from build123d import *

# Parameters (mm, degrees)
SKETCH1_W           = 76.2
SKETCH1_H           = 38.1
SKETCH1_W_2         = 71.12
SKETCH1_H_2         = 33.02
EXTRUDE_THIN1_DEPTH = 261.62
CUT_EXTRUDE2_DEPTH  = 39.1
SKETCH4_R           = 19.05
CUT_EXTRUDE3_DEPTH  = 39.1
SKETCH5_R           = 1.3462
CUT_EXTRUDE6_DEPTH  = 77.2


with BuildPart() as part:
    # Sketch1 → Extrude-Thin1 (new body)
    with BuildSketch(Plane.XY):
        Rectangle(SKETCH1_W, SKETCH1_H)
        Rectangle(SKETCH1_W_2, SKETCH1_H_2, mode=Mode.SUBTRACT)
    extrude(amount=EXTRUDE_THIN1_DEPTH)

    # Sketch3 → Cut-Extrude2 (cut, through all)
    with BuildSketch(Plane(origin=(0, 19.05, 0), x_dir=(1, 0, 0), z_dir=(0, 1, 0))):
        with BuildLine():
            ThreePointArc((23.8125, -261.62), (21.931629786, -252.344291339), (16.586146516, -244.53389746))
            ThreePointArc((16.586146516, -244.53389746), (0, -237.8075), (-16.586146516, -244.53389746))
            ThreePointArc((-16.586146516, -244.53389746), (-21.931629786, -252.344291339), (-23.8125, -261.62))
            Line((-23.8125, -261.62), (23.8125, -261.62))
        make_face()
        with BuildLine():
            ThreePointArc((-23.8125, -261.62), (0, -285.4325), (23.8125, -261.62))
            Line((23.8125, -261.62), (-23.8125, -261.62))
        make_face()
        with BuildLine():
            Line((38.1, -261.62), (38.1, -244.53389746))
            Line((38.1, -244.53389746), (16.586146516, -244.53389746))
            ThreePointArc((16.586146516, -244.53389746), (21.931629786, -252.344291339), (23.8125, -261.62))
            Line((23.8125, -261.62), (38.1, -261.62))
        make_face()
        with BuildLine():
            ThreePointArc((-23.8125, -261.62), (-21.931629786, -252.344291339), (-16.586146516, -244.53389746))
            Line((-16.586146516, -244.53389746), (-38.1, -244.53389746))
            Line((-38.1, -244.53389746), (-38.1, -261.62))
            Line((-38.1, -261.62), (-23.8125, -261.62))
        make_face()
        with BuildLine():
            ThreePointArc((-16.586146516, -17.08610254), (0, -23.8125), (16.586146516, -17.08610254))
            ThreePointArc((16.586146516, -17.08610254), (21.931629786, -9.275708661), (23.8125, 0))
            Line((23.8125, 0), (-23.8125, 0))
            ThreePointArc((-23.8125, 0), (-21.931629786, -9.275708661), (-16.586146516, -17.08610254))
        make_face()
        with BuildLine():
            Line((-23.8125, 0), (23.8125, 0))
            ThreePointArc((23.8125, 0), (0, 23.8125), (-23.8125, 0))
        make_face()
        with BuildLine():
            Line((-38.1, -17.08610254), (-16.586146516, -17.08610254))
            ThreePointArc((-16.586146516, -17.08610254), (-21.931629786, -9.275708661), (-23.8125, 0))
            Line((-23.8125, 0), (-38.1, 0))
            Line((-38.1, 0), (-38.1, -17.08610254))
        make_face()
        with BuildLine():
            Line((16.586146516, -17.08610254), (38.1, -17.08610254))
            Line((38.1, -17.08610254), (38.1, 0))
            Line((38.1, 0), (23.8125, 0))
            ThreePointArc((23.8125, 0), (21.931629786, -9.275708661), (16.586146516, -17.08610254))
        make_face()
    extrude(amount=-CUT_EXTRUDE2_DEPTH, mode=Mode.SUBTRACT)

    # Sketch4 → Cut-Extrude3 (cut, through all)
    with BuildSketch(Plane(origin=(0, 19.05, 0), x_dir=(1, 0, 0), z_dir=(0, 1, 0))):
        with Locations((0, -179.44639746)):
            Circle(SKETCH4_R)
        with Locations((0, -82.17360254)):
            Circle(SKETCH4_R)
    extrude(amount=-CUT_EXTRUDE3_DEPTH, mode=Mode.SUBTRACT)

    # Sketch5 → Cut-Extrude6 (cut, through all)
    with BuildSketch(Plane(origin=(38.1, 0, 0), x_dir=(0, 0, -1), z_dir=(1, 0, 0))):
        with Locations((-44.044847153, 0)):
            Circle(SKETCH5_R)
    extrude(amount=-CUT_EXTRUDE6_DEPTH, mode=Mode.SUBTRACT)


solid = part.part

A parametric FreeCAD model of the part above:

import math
import FreeCAD as App
import Part
import Sketcher
from FreeCAD import Vector
Q = App.Units.Quantity


def add_polygon(sketch, points):
    """Adds a closed chain of lines whose ends are joined by coincident constraints."""
    first, n = sketch.GeometryCount, len(points)
    for a, b in zip(points, points[1:] + points[:1]):
        sketch.addGeometry(Part.LineSegment(App.Vector(*a, 0), App.Vector(*b, 0)), False)
    for i in range(n):
        sketch.addConstraint(Sketcher.Constraint("Coincident", first + i, 2, first + (i + 1) % n, 1))

doc = App.newDocument("Part")
params = doc.addObject("Spreadsheet::Sheet", "Params")
for row, (alias, value) in enumerate([
    ("sketch1_width", "3 in"),
    ("sketch1_width2", "2.8 in"),
    ("sketch1_height", "1.5 in"),
    ("sketch1_height2", "1.3 in"),
    ("pad1_length", "10.3 in"),
    ("sketch2_radius", "0.9375 in"),
    ("sketch3_diameter", "1.5 in"),
    ("sketch4_diameter", "0.106 in"),
], start=1):
    params.set(f"A{row}", alias)
    params.set(f"B{row}", "=" + value)
    params.setAlias(f"B{row}", alias)

body = doc.addObject("PartDesign::Body", "Body")

sketch1 = body.newObject("Sketcher::SketchObject", "Sketch")
sketch1.AttachmentSupport = (doc.getObject("XY_Plane"), [""])
sketch1.MapMode = "FlatFace"
add_polygon(sketch1, [(-38, 19), (-38, -19), (38, -19), (38, 19)])
add_polygon(sketch1, [(36, -17), (-36, -17), (-36, 17), (36, 17)])
sketch1.addConstraint(Sketcher.Constraint("Vertical", 0))
sketch1.addConstraint(Sketcher.Constraint("Horizontal", 1))
sketch1.addConstraint(Sketcher.Constraint("Vertical", 2))
sketch1.addConstraint(Sketcher.Constraint("Horizontal", 3))
sketch1.addConstraint(Sketcher.Constraint("Horizontal", 4))
sketch1.addConstraint(Sketcher.Constraint("Vertical", 5))
sketch1.addConstraint(Sketcher.Constraint("Horizontal", 6))
sketch1.addConstraint(Sketcher.Constraint("Vertical", 7))
sketch1.addConstraint(Sketcher.Constraint("Symmetric", 0, 2, 2, 2, -1, 1))
sketch1.addConstraint(Sketcher.Constraint("Symmetric", 4, 2, 6, 2, -1, 1))
sketch1.addConstraint(Sketcher.Constraint("DistanceX", 1, 1, 1, 2, Q("3 in")))
sketch1.addConstraint(Sketcher.Constraint("DistanceX", 4, 2, 4, 1, Q("2.8 in")))
sketch1.addConstraint(Sketcher.Constraint("DistanceY", 0, 2, 0, 1, Q("1.5 in")))
sketch1.addConstraint(Sketcher.Constraint("DistanceY", 5, 1, 5, 2, Q("1.3 in")))
sketch1.setExpression("Constraints[18]", "Params.sketch1_width")
sketch1.setExpression("Constraints[19]", "Params.sketch1_width2")
sketch1.setExpression("Constraints[20]", "Params.sketch1_height")
sketch1.setExpression("Constraints[21]", "Params.sketch1_height2")
pad1 = body.newObject("PartDesign::Pad", "Pad")
pad1.Profile = sketch1
pad1.setExpression("Length", "Params.pad1_length")

sketch2 = body.newObject("Sketcher::SketchObject", "Sketch001")
sketch2.AttachmentSupport = (doc.getObject("XZ_Plane"), [""])
sketch2.MapMode = "FlatFace"
sketch2.AttachmentOffset = App.Placement(Vector(0, 0, -0.75 * 25.4), App.Rotation())
sketch2.addGeometry(Part.ArcOfCircle(Part.Circle(Vector(0, 262, 0), Vector(0, 0, 1), 24), math.radians(-134), math.radians(-46)), False)
sketch2.addGeometry(Part.LineSegment(Vector(-17, 245, 0), Vector(-38, 245, 0)), False)
sketch2.addGeometry(Part.LineSegment(Vector(-38, 245, 0), Vector(-38, 262, 0)), False)
sketch2.addGeometry(Part.LineSegment(Vector(-38, 262, 0), Vector(-24, 262, 0)), False)
sketch2.addGeometry(Part.ArcOfCircle(Part.Circle(Vector(0, 262, 0), Vector(0, 0, 1), 24), math.radians(0), math.radians(180)), False)
sketch2.addGeometry(Part.LineSegment(Vector(24, 262, 0), Vector(38, 262, 0)), False)
sketch2.addGeometry(Part.LineSegment(Vector(38, 262, 0), Vector(38, 245, 0)), False)
sketch2.addGeometry(Part.LineSegment(Vector(38, 245, 0), Vector(17, 245, 0)), False)
sketch2.addGeometry(Part.ArcOfCircle(Part.Circle(Vector(0, 0, 0), Vector(0, 0, 1), 24), math.radians(46), math.radians(134)), False)
sketch2.addGeometry(Part.LineSegment(Vector(17, 17, 0), Vector(38, 17, 0)), False)
sketch2.addGeometry(Part.LineSegment(Vector(38, 17, 0), Vector(38, 0, 0)), False)
sketch2.addGeometry(Part.LineSegment(Vector(38, 0, 0), Vector(24, 0, 0)), False)
sketch2.addGeometry(Part.ArcOfCircle(Part.Circle(Vector(0, 0, 0), Vector(0, 0, 1), 24), math.radians(180), math.radians(360)), False)
sketch2.addGeometry(Part.LineSegment(Vector(-24, 0, 0), Vector(-38, 0, 0)), False)
sketch2.addGeometry(Part.LineSegment(Vector(-38, 0, 0), Vector(-38, 17, 0)), False)
sketch2.addGeometry(Part.LineSegment(Vector(-38, 17, 0), Vector(-17, 17, 0)), False)
sketch2.addConstraint(Sketcher.Constraint("Coincident", 0, 1, 1, 1))
sketch2.addConstraint(Sketcher.Constraint("Coincident", 1, 2, 2, 1))
sketch2.addConstraint(Sketcher.Constraint("Coincident", 2, 2, 3, 1))
sketch2.addConstraint(Sketcher.Constraint("Coincident", 3, 2, 4, 2))
sketch2.addConstraint(Sketcher.Constraint("Coincident", 4, 1, 5, 1))
sketch2.addConstraint(Sketcher.Constraint("Coincident", 5, 2, 6, 1))
sketch2.addConstraint(Sketcher.Constraint("Coincident", 6, 2, 7, 1))
sketch2.addConstraint(Sketcher.Constraint("Coincident", 7, 2, 0, 2))
sketch2.addConstraint(Sketcher.Constraint("Coincident", 8, 1, 9, 1))
sketch2.addConstraint(Sketcher.Constraint("Coincident", 9, 2, 10, 1))
sketch2.addConstraint(Sketcher.Constraint("Coincident", 10, 2, 11, 1))
sketch2.addConstraint(Sketcher.Constraint("Coincident", 11, 2, 12, 2))
sketch2.addConstraint(Sketcher.Constraint("Coincident", 12, 1, 13, 1))
sketch2.addConstraint(Sketcher.Constraint("Coincident", 13, 2, 14, 1))
sketch2.addConstraint(Sketcher.Constraint("Coincident", 14, 2, 15, 1))
sketch2.addConstraint(Sketcher.Constraint("Coincident", 15, 2, 8, 2))
sketch2.addConstraint(Sketcher.Constraint("Horizontal", 1))
sketch2.addConstraint(Sketcher.Constraint("Vertical", 2))
sketch2.addConstraint(Sketcher.Constraint("Horizontal", 3))
sketch2.addConstraint(Sketcher.Constraint("Horizontal", 5))
sketch2.addConstraint(Sketcher.Constraint("Vertical", 6))
sketch2.addConstraint(Sketcher.Constraint("Horizontal", 7))
sketch2.addConstraint(Sketcher.Constraint("Horizontal", 9))
sketch2.addConstraint(Sketcher.Constraint("Vertical", 10))
sketch2.addConstraint(Sketcher.Constraint("Horizontal", 11))
sketch2.addConstraint(Sketcher.Constraint("Horizontal", 13))
sketch2.addConstraint(Sketcher.Constraint("Vertical", 14))
sketch2.addConstraint(Sketcher.Constraint("Horizontal", 15))
sketch2.addConstraint(Sketcher.Constraint("Coincident", 8, 3, -1, 1))
sketch2.addConstraint(Sketcher.Constraint("Coincident", 12, 3, -1, 1))
sketch2.addConstraint(Sketcher.Constraint("Coincident", 4, 3, 0, 3))
sketch2.addConstraint(Sketcher.Constraint("Equal", 0, 4))
sketch2.addConstraint(Sketcher.Constraint("Equal", 4, 8))
sketch2.addConstraint(Sketcher.Constraint("Equal", 8, 12))
sketch2.addConstraint(Sketcher.Constraint("Symmetric", 10, 2, 13, 2, -1, 1))
sketch2.addConstraint(Sketcher.Constraint("Symmetric", 3, 2, 4, 1, -2))
sketch2.addConstraint(Sketcher.Constraint("Symmetric", 1, 2, 6, 2, -2))
sketch2.addConstraint(Sketcher.Constraint("PointOnObject", 10, 2, -1))
sketch2.addConstraint(Sketcher.Constraint("Horizontal", 4, 3, 2, 2))
sketch2.addConstraint(Sketcher.Constraint("Horizontal", 9, 2, 14, 2))
sketch2.addConstraint(Sketcher.Constraint("Vertical", 7, 2, 8, 1))
sketch2.addConstraint(Sketcher.Constraint("Vertical", 6, 2, 9, 2))
sketch2.addConstraint(Sketcher.Constraint("Radius", 0, Q("0.9375 in")))
sketch2.addConstraint(Sketcher.Constraint("DistanceY", -1, 1, 0, 3, Q("10.3 in")))
sketch2.addConstraint(Sketcher.Constraint("DistanceX", 1, 2, -1, 1, Q("1.5 in")))
sketch2.addConstraint(Sketcher.Constraint("DistanceX", 1, 2, 1, 1, 21.513853))
sketch2.setExpression("Constraints[42]", "Params.sketch2_radius")
pocket1 = body.newObject("PartDesign::Pocket", "Pocket")
pocket1.Profile = sketch2
pocket1.Type = "ThroughAll"
pocket1.Reversed = True

sketch3 = body.newObject("Sketcher::SketchObject", "Sketch002")
sketch3.AttachmentSupport = (doc.getObject("XZ_Plane"), [""])
sketch3.MapMode = "FlatFace"
sketch3.AttachmentOffset = App.Placement(Vector(0, 0, -0.75 * 25.4), App.Rotation())
sketch3.addGeometry(Part.Circle(Vector(0, 179, 0), Vector(0, 0, 1), 19), False)
sketch3.addGeometry(Part.Circle(Vector(0, 82, 0), Vector(0, 0, 1), 19), False)
sketch3.addConstraint(Sketcher.Constraint("Equal", 0, 1))
sketch3.addConstraint(Sketcher.Constraint("PointOnObject", 0, 3, -2))
sketch3.addConstraint(Sketcher.Constraint("PointOnObject", 1, 3, -2))
sketch3.addConstraint(Sketcher.Constraint("Diameter", 0, Q("1.5 in")))
sketch3.addConstraint(Sketcher.Constraint("DistanceY", -1, 1, 0, 3, 179.446397))
sketch3.addConstraint(Sketcher.Constraint("DistanceY", -1, 1, 1, 3, 82.173603))
sketch3.setExpression("Constraints[3]", "Params.sketch3_diameter")
pocket2 = body.newObject("PartDesign::Pocket", "Pocket001")
pocket2.Profile = sketch3
pocket2.Type = "ThroughAll"
pocket2.Reversed = True

sketch4 = body.newObject("Sketcher::SketchObject", "Sketch003")
sketch4.AttachmentSupport = (doc.getObject("YZ_Plane"), [""])
sketch4.MapMode = "FlatFace"
sketch4.AttachmentOffset = App.Placement(Vector(0, 0, 1.5 * 25.4), App.Rotation())
sketch4.addGeometry(Part.Circle(Vector(0, 44, 0), Vector(0, 0, 1), 1.3), False)
sketch4.addConstraint(Sketcher.Constraint("PointOnObject", 0, 3, -2))
sketch4.addConstraint(Sketcher.Constraint("Diameter", 0, Q("0.106 in")))
sketch4.addConstraint(Sketcher.Constraint("DistanceY", -1, 1, 0, 3, 44.044847))
sketch4.setExpression("Constraints[1]", "Params.sketch4_diameter")
pocket3 = body.newObject("PartDesign::Pocket", "Pocket002")
pocket3.Profile = sketch4
pocket3.Type = "ThroughAll"

doc.recompute()
